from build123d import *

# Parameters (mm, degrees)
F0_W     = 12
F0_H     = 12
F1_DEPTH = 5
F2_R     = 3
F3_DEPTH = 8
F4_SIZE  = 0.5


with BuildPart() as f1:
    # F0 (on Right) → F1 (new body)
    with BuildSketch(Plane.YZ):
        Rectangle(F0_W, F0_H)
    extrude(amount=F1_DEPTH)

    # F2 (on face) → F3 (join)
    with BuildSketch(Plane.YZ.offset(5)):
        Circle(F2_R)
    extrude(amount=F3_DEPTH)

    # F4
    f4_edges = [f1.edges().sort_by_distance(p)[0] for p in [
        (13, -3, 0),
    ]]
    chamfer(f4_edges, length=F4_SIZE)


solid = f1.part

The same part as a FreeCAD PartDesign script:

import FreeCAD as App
import Part
import Sketcher

V = App.Vector
Q = App.Units.Quantity


def edges_at(feature, points):
    """Names of the edges that pass closest to the given points."""
    edges = feature.Shape.Edges
    near = lambda p: min(range(len(edges)), key=lambda i: edges[i].distToShape(Part.Vertex(*p))[0])
    return sorted({f"Edge{near(p) + 1}" for p in points})

doc = App.newDocument("Part")
body = doc.addObject("PartDesign::Body", "Body")

# Sketch on YZ plane
sketch1 = body.newObject("Sketcher::SketchObject", "Sketch")
sketch1.AttachmentSupport = (doc.getObject("YZ_Plane"), [""])
sketch1.MapMode = "FlatFace"
sketch1.addGeometry(Part.LineSegment(V(-6, 6, 0), V(-6, -6, 0)), False)
sketch1.addGeometry(Part.LineSegment(V(-6, -6, 0), V(6, -6, 0)), False)
sketch1.addGeometry(Part.LineSegment(V(6, -6, 0), V(6, 6, 0)), False)
sketch1.addGeometry(Part.LineSegment(V(6, 6, 0), V(-6, 6, 0)), False)
sketch1.addConstraint(Sketcher.Constraint("Coincident", 0, 2, 1, 1))
sketch1.addConstraint(Sketcher.Constraint("Coincident", 1, 2, 2, 1))
sketch1.addConstraint(Sketcher.Constraint("Coincident", 2, 2, 3, 1))
sketch1.addConstraint(Sketcher.Constraint("Coincident", 3, 2, 0, 1))
sketch1.addConstraint(Sketcher.Constraint("Vertical", 0))
sketch1.addConstraint(Sketcher.Constraint("Horizontal", 1))
sketch1.addConstraint(Sketcher.Constraint("Vertical", 2))
sketch1.addConstraint(Sketcher.Constraint("Horizontal", 3))
sketch1.addConstraint(Sketcher.Constraint("Symmetric", 0, 2, 2, 2, -1, 1))
sketch1.addConstraint(Sketcher.Constraint("Equal", 3, 0))
sketch1.addConstraint(Sketcher.Constraint("DistanceX", 1, 1, 1, 2, Q("12 mm")))
pad1 = body.newObject("PartDesign::Pad", "Pad")
pad1.Profile = sketch1
pad1.Length = 5

# Sketch on YZ plane
sketch2 = body.newObject("Sketcher::SketchObject", "Sketch001")
sketch2.AttachmentSupport = (doc.getObject("YZ_Plane"), [""])
sketch2.MapMode = "FlatFace"
sketch2.AttachmentOffset = App.Placement(V(0, 0, 5), App.Rotation())
sketch2.addGeometry(Part.Circle(V(0, 0, 0), V(0, 0, 1), 3), False)
sketch2.addConstraint(Sketcher.Constraint("Coincident", 0, 3, -1, 1))
sketch2.addConstraint(Sketcher.Constraint("Diameter", 0, Q("6 mm")))
pad2 = body.newObject("PartDesign::Pad", "Pad001")
pad2.Profile = sketch2
pad2.Length = 8
doc.recompute()

chamfer = body.newObject("PartDesign::Chamfer", "Chamfer")
chamfer.Base = (pad2, edges_at(pad2, [(13, -3, 0)]))
chamfer.Size = 0.5

doc.recompute()
